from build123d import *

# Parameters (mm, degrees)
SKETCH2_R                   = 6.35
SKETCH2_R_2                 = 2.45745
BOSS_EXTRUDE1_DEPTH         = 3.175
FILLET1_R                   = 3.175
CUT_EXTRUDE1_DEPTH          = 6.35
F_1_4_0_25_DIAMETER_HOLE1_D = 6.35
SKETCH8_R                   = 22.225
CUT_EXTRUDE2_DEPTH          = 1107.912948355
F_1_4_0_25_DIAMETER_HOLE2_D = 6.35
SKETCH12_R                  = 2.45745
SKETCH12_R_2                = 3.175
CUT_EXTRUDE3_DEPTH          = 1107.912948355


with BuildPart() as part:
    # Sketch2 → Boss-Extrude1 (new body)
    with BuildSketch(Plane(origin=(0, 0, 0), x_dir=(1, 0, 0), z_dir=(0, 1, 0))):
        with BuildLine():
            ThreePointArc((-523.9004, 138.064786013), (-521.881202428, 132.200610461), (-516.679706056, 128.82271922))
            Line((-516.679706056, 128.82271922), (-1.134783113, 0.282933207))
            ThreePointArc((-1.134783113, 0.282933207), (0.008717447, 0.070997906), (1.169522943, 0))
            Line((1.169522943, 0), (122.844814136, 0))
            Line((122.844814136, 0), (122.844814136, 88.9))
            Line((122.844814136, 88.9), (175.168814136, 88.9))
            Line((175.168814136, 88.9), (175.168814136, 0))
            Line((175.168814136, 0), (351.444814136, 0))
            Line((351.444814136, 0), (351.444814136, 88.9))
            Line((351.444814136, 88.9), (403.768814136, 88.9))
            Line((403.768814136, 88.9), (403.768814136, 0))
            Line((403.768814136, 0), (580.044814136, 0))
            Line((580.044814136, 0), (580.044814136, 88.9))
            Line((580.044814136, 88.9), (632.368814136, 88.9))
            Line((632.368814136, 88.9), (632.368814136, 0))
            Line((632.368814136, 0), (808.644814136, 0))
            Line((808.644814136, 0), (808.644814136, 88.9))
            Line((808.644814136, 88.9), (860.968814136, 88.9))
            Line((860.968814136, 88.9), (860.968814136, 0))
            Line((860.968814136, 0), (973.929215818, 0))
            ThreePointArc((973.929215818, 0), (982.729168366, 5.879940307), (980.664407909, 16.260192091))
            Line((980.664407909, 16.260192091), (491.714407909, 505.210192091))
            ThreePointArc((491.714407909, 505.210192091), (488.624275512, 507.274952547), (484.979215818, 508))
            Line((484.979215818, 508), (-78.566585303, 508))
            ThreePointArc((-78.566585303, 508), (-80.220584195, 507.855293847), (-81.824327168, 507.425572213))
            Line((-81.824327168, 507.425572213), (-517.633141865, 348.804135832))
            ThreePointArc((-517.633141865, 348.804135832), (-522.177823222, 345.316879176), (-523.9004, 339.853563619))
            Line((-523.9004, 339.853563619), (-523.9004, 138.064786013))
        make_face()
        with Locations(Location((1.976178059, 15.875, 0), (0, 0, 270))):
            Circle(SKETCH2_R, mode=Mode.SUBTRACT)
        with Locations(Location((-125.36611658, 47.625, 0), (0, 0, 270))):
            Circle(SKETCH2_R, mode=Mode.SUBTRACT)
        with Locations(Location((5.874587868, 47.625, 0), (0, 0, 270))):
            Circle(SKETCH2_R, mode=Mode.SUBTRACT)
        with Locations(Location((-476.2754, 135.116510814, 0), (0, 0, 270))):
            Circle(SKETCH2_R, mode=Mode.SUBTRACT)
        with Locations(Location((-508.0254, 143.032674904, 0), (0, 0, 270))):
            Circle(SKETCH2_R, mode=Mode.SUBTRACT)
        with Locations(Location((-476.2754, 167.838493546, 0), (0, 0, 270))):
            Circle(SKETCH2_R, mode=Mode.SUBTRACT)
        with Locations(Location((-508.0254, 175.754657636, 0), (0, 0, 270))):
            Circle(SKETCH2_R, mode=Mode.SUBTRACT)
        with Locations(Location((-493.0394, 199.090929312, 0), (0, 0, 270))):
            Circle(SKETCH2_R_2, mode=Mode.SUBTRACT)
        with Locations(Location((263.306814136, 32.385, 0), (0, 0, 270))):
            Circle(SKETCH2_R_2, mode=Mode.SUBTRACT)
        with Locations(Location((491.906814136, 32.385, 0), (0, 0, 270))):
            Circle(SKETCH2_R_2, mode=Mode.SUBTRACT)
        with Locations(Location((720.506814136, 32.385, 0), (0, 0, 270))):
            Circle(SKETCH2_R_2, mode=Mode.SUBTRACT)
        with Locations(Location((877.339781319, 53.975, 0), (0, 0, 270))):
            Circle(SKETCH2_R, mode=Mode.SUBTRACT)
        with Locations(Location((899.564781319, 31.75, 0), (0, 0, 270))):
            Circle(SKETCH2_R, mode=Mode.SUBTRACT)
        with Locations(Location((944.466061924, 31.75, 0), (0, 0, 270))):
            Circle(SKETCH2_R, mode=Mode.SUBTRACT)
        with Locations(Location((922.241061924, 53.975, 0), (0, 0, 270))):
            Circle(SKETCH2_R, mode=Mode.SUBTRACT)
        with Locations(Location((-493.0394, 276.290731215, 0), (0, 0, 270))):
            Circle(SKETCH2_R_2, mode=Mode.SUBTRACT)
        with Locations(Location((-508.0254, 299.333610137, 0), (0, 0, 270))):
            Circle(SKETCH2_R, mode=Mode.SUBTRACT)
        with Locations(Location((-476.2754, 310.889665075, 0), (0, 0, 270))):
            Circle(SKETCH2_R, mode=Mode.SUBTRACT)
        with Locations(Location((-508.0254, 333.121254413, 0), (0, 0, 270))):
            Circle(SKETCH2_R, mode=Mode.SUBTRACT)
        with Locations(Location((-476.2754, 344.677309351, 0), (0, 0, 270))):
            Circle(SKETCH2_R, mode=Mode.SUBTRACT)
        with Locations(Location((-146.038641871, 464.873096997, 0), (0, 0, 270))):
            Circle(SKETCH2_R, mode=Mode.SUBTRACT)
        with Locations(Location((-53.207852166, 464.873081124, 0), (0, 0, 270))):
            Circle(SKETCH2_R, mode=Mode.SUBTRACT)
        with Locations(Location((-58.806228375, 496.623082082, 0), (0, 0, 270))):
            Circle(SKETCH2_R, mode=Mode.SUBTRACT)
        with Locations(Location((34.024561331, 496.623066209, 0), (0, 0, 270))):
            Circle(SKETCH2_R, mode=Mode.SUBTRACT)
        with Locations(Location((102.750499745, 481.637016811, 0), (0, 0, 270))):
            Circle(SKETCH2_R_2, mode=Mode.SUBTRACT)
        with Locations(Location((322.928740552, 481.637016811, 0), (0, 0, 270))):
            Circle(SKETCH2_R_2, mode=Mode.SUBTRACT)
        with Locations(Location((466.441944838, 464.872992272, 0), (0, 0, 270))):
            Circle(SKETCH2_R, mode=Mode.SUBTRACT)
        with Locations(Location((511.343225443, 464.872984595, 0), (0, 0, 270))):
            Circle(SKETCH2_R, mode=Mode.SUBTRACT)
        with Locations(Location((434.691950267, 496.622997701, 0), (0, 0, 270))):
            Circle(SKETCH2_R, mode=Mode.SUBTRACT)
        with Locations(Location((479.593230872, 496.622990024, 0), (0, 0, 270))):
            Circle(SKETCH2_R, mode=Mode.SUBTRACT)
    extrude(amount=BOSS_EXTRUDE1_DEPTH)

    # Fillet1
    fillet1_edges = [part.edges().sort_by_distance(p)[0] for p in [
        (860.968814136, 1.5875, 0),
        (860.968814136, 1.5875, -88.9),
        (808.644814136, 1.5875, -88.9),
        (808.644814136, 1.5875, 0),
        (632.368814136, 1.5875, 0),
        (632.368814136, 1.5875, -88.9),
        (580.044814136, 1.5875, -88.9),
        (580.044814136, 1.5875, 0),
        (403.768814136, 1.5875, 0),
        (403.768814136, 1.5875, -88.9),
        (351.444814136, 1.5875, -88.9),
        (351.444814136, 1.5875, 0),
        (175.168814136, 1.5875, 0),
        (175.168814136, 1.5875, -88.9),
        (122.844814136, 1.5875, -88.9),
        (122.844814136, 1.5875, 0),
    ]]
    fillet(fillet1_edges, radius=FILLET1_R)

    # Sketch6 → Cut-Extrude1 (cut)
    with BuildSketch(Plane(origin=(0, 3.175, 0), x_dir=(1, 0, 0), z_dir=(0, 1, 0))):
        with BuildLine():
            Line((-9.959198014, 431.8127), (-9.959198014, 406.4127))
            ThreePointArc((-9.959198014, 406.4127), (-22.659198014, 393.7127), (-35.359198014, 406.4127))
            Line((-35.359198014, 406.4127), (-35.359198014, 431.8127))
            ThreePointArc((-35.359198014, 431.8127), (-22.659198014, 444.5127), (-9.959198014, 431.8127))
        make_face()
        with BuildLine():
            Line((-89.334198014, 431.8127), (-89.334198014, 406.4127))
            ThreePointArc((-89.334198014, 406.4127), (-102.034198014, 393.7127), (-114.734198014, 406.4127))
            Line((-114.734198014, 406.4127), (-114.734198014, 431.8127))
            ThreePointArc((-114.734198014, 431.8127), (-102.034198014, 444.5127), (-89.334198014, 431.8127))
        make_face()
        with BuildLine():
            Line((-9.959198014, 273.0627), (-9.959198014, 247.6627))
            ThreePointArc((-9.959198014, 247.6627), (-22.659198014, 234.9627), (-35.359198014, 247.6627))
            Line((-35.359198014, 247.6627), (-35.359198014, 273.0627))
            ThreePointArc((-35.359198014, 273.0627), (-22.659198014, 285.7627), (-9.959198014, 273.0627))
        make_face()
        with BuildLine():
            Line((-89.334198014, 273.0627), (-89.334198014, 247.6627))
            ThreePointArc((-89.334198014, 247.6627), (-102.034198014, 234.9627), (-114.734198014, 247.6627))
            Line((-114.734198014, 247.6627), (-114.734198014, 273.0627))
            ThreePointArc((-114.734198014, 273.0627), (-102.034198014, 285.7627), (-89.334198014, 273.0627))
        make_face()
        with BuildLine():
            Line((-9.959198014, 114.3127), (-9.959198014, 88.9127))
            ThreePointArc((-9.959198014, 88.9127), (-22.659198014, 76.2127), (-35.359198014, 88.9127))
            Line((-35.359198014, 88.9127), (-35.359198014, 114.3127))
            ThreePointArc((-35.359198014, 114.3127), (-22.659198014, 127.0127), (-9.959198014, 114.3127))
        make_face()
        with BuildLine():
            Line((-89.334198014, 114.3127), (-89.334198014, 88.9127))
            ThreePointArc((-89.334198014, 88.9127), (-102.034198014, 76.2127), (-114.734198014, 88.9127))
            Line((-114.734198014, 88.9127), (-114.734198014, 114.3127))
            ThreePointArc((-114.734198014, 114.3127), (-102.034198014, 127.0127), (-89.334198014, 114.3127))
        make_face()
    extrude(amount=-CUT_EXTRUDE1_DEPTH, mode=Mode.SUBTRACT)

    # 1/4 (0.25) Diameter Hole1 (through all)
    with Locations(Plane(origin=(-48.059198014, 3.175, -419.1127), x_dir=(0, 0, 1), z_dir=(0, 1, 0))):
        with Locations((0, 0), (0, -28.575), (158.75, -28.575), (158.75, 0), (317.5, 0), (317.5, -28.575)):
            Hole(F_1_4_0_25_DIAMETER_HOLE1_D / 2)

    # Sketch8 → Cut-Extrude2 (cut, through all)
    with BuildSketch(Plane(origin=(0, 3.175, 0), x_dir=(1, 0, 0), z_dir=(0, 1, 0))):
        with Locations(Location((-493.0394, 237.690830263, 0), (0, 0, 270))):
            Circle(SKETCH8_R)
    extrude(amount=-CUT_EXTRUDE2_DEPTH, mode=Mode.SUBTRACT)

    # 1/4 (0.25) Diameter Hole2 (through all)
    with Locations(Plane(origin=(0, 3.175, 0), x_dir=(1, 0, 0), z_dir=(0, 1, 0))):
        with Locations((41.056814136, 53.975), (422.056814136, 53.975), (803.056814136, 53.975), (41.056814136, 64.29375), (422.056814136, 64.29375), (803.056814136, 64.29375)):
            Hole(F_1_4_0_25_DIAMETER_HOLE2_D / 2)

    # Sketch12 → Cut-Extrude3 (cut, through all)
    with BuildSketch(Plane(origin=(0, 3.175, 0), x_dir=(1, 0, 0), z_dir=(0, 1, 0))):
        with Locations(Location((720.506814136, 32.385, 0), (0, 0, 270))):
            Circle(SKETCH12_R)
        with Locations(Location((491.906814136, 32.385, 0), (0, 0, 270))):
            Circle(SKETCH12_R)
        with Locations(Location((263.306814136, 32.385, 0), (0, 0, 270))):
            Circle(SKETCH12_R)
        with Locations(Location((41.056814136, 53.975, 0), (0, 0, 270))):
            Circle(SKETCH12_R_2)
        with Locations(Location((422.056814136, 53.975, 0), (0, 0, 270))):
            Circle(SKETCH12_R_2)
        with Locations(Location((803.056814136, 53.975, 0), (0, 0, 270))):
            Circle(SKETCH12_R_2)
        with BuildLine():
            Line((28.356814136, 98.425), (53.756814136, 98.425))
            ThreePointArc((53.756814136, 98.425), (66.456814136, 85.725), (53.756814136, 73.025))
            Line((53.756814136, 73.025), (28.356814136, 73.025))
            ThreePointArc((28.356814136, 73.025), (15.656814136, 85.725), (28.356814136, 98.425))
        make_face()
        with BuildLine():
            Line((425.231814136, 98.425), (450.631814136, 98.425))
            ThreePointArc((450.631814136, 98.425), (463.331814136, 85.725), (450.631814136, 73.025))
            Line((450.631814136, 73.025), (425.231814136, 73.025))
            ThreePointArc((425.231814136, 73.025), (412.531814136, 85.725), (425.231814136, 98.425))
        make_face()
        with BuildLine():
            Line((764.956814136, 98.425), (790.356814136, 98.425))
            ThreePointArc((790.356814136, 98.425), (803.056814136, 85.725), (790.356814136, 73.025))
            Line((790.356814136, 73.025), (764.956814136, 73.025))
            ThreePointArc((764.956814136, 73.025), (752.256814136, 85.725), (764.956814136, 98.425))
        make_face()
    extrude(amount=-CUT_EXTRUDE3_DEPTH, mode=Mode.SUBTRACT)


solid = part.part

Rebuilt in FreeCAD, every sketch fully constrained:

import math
import FreeCAD as App
import Part
import Sketcher

V = App.Vector
Q = App.Units.Quantity


def edges_at(feature, points):
    """Names of the edges that pass closest to the given points."""
    edges = feature.Shape.Edges
    near = lambda p: min(range(len(edges)), key=lambda i: edges[i].distToShape(Part.Vertex(*p))[0])
    return sorted({f"Edge{near(p) + 1}" for p in points})

doc = App.newDocument("Part")
body = doc.addObject("PartDesign::Body", "Body")

# Sketch on XZ plane
sketch1 = body.newObject("Sketcher::SketchObject", "Sketch")
sketch1.AttachmentSupport = (doc.getObject("XZ_Plane"), [""])
sketch1.MapMode = "FlatFace"
sketch1.addGeometry([
    Part.ArcOfCircle(Part.Circle(V(-514.4, -138.1, 0), V(0, 0, 1), 9.5), math.radians(104), math.radians(180)),  # 0
    Part.LineSegment(V(-516.7, -128.8, 0), V(-1.1, -0.3, 0)),  # 1
    Part.ArcOfCircle(Part.Circle(V(1.2, -9.5, 0), V(0, 0, 1), 9.5), math.radians(90), math.radians(104)),  # 2
    Part.LineSegment(V(1.2, 0, 0), V(122.8, 0, 0)),  # 3
    Part.LineSegment(V(122.8, 0, 0), V(122.8, -88.9, 0)),  # 4
    Part.LineSegment(V(122.8, -88.9, 0), V(175.2, -88.9, 0)),  # 5
    Part.LineSegment(V(175.2, -88.9, 0), V(175.2, 0, 0)),  # 6
    Part.LineSegment(V(175.2, 0, 0), V(351.4, 0, 0)),  # 7
    Part.LineSegment(V(351.4, 0, 0), V(351.4, -88.9, 0)),  # 8
    Part.LineSegment(V(351.4, -88.9, 0), V(403.8, -88.9, 0)),  # 9
    Part.LineSegment(V(403.8, -88.9, 0), V(403.8, 0, 0)),  # 10
    Part.LineSegment(V(403.8, 0, 0), V(580, 0, 0)),  # 11
    Part.LineSegment(V(580, 0, 0), V(580, -88.9, 0)),  # 12
    Part.LineSegment(V(580, -88.9, 0), V(632.4, -88.9, 0)),  # 13
    Part.LineSegment(V(632.4, -88.9, 0), V(632.4, 0, 0)),  # 14
    Part.LineSegment(V(632.4, 0, 0), V(808.6, 0, 0)),  # 15
    Part.LineSegment(V(808.6, 0, 0), V(808.6, -88.9, 0)),  # 16
    Part.LineSegment(V(808.6, -88.9, 0), V(861, -88.9, 0)),  # 17
    Part.LineSegment(V(861, -88.9, 0), V(861, 0, 0)),  # 18
    Part.LineSegment(V(861, 0, 0), V(973.9, 0, 0)),  # 19
    Part.ArcOfCircle(Part.Circle(V(973.9, -9.5, 0), V(0, 0, 1), 9.5), math.radians(-45), math.radians(90)),  # 20
    Part.LineSegment(V(980.7, -16.3, 0), V(491.7, -505.2, 0)),  # 21
    Part.ArcOfCircle(Part.Circle(V(485, -498.5, 0), V(0, 0, 1), 9.5), math.radians(-90), math.radians(-45)),  # 22
    Part.LineSegment(V(485, -508, 0), V(-78.6, -508, 0)),  # 23
    Part.ArcOfCircle(Part.Circle(V(-78.6, -498.5, 0), V(0, 0, 1), 9.5), math.radians(-110), math.radians(-90)),  # 24
    Part.LineSegment(V(-81.8, -507.4, 0), V(-517.6, -348.8, 0)),  # 25
    Part.ArcOfCircle(Part.Circle(V(-514.4, -339.9, 0), V(0, 0, 1), 9.5), math.radians(180), math.radians(250)),  # 26
    Part.LineSegment(V(-523.9, -339.9, 0), V(-523.9, -138.1, 0)),  # 27
    Part.Circle(V(2, -15.9, 0), V(0, 0, 1), 6.3),  # 28
    Part.Circle(V(-125.4, -47.6, 0), V(0, 0, 1), 6.3),  # 29
    Part.Circle(V(5.9, -47.6, 0), V(0, 0, 1), 6.3),  # 30
    Part.Circle(V(-476.3, -135.1, 0), V(0, 0, 1), 6.3),  # 31
    Part.Circle(V(-508, -143, 0), V(0, 0, 1), 6.3),  # 32
    Part.Circle(V(-476.3, -167.8, 0), V(0, 0, 1), 6.3),  # 33
    Part.Circle(V(-508, -175.8, 0), V(0, 0, 1), 6.3),  # 34
    Part.Circle(V(-493, -199.1, 0), V(0, 0, 1), 2.5),  # 35
    Part.Circle(V(263.3, -32.4, 0), V(0, 0, 1), 2.5),  # 36
    Part.Circle(V(491.9, -32.4, 0), V(0, 0, 1), 2.5),  # 37
    Part.Circle(V(720.5, -32.4, 0), V(0, 0, 1), 2.5),  # 38
    Part.Circle(V(899.6, -31.8, 0), V(0, 0, 1), 6.3),  # 39
    Part.Circle(V(944.5, -31.8, 0), V(0, 0, 1), 6.3),  # 40
    Part.Circle(V(877.3, -54, 0), V(0, 0, 1), 6.3),  # 41
    Part.Circle(V(922.2, -54, 0), V(0, 0, 1), 6.3),  # 42
    Part.Circle(V(-493, -276.3, 0), V(0, 0, 1), 2.5),  # 43
    Part.Circle(V(-508, -299.3, 0), V(0, 0, 1), 6.3),  # 44
    Part.Circle(V(-476.3, -310.9, 0), V(0, 0, 1), 6.3),  # 45
    Part.Circle(V(-508, -333.1, 0), V(0, 0, 1), 6.3),  # 46
    Part.Circle(V(-476.3, -344.7, 0), V(0, 0, 1), 6.3),  # 47
    Part.Circle(V(-146, -464.9, 0), V(0, 0, 1), 6.3),  # 48
    Part.Circle(V(-53.2, -464.9, 0), V(0, 0, 1), 6.3),  # 49
    Part.Circle(V(-58.8, -496.6, 0), V(0, 0, 1), 6.3),  # 50
    Part.Circle(V(34, -496.6, 0), V(0, 0, 1), 6.3),  # 51
    Part.Circle(V(102.8, -481.6, 0), V(0, 0, 1), 2.5),  # 52
    Part.Circle(V(322.9, -481.6, 0), V(0, 0, 1), 2.5),  # 53
    Part.Circle(V(466.4, -464.9, 0), V(0, 0, 1), 6.3),  # 54
    Part.Circle(V(511.3, -464.9, 0), V(0, 0, 1), 6.3),  # 55
    Part.Circle(V(434.7, -496.6, 0), V(0, 0, 1), 6.3),  # 56
    Part.Circle(V(479.6, -496.6, 0), V(0, 0, 1), 6.3),  # 57
], False)
sketch1.addConstraint([
    Sketcher.Constraint("Tangent", 0, 1, 1, 1),
    Sketcher.Constraint("Tangent", 1, 2, 2, 2),
    Sketcher.Constraint("Tangent", 2, 1, 3, 1),
    Sketcher.Constraint("Coincident", 3, 2, 4, 1),
    Sketcher.Constraint("Coincident", 4, 2, 5, 1),
    Sketcher.Constraint("Coincident", 5, 2, 6, 1),
    Sketcher.Constraint("Coincident", 6, 2, 7, 1),
    Sketcher.Constraint("Coincident", 7, 2, 8, 1),
    Sketcher.Constraint("Coincident", 8, 2, 9, 1),
    Sketcher.Constraint("Coincident", 9, 2, 10, 1),
    Sketcher.Constraint("Coincident", 10, 2, 11, 1),
    Sketcher.Constraint("Coincident", 11, 2, 12, 1),
    Sketcher.Constraint("Coincident", 12, 2, 13, 1),
    Sketcher.Constraint("Coincident", 13, 2, 14, 1),
    Sketcher.Constraint("Coincident", 14, 2, 15, 1),
    Sketcher.Constraint("Coincident", 15, 2, 16, 1),
    Sketcher.Constraint("Coincident", 16, 2, 17, 1),
    Sketcher.Constraint("Coincident", 17, 2, 18, 1),
    Sketcher.Constraint("Coincident", 18, 2, 19, 1),
    Sketcher.Constraint("Tangent", 19, 2, 20, 2),
    Sketcher.Constraint("Tangent", 20, 1, 21, 1),
    Sketcher.Constraint("Tangent", 21, 2, 22, 2),
    Sketcher.Constraint("Tangent", 22, 1, 23, 1),
    Sketcher.Constraint("Tangent", 23, 2, 24, 2),
    Sketcher.Constraint("Tangent", 24, 1, 25, 1),
    Sketcher.Constraint("Tangent", 25, 2, 26, 2),
    Sketcher.Constraint("Tangent", 26, 1, 27, 1),
    Sketcher.Constraint("Tangent", 27, 2, 0, 2),
    Sketcher.Constraint("Horizontal", 3),
    Sketcher.Constraint("Vertical", 4),
    Sketcher.Constraint("Horizontal", 5),
    Sketcher.Constraint("Vertical", 6),
    Sketcher.Constraint("Horizontal", 7),
    Sketcher.Constraint("Vertical", 8),
    Sketcher.Constraint("Horizontal", 9),
    Sketcher.Constraint("Vertical", 10),
    Sketcher.Constraint("Horizontal", 11),
    Sketcher.Constraint("Vertical", 12),
    Sketcher.Constraint("Horizontal", 13),
    Sketcher.Constraint("Vertical", 14),
    Sketcher.Constraint("Horizontal", 15),
    Sketcher.Constraint("Vertical", 16),
    Sketcher.Constraint("Horizontal", 17),
    Sketcher.Constraint("Vertical", 18),
    Sketcher.Constraint("Horizontal", 19),
    Sketcher.Constraint("Horizontal", 23),
    Sketcher.Constraint("Vertical", 27),
    Sketcher.Constraint("Equal", 0, 2),
    Sketcher.Constraint("Equal", 2, 20),
    Sketcher.Constraint("Equal", 20, 22),
    Sketcher.Constraint("Equal", 22, 24),
    Sketcher.Constraint("Equal", 24, 26),
    Sketcher.Constraint("Equal", 28, 29),
    Sketcher.Constraint("Equal", 29, 30),
    Sketcher.Constraint("Equal", 30, 31),
    Sketcher.Constraint("Equal", 31, 32),
    Sketcher.Constraint("Equal", 32, 33),
    Sketcher.Constraint("Equal", 33, 34),
    Sketcher.Constraint("Equal", 35, 36),
    Sketcher.Constraint("Equal", 36, 37),
    Sketcher.Constraint("Equal", 37, 38),
    Sketcher.Constraint("Equal", 34, 39),
    Sketcher.Constraint("Equal", 39, 40),
    Sketcher.Constraint("Equal", 40, 41),
    Sketcher.Constraint("Equal", 41, 42),
    Sketcher.Constraint("Equal", 38, 43),
    Sketcher.Constraint("Equal", 42, 44),
    Sketcher.Constraint("Equal", 44, 45),
    Sketcher.Constraint("Equal", 45, 46),
    Sketcher.Constraint("Equal", 46, 47),
    Sketcher.Constraint("Equal", 47, 48),
    Sketcher.Constraint("Equal", 48, 49),
    Sketcher.Constraint("Equal", 49, 50),
    Sketcher.Constraint("Equal", 50, 51),
    Sketcher.Constraint("Equal", 43, 52),
    Sketcher.Constraint("Equal", 52, 53),
    Sketcher.Constraint("Equal", 51, 54),
    Sketcher.Constraint("Equal", 54, 55),
    Sketcher.Constraint("Equal", 55, 56),
    Sketcher.Constraint("Equal", 56, 57),
    Sketcher.Constraint("PointOnObject", 2, 1, -1),
    Sketcher.Constraint("PointOnObject", 6, 2, -1),
    Sketcher.Constraint("PointOnObject", 10, 2, -1),
    Sketcher.Constraint("PointOnObject", 14, 2, -1),
    Sketcher.Constraint("PointOnObject", 18, 2, -1),
    Sketcher.Constraint("Horizontal", 29, 3, 30, 3),
    Sketcher.Constraint("Horizontal", 36, 3, 37, 3),
    Sketcher.Constraint("Horizontal", 37, 3, 38, 3),
    Sketcher.Constraint("Horizontal", 39, 3, 40, 3),
    Sketcher.Constraint("Horizontal", 41, 3, 42, 3),
    Sketcher.Constraint("Horizontal", 52, 3, 53, 3),
    Sketcher.Constraint("Horizontal", 5, 2, 8, 2),
    Sketcher.Constraint("Horizontal", 9, 2, 12, 2),
    Sketcher.Constraint("Horizontal", 13, 2, 16, 2),
    Sketcher.Constraint("Vertical", 31, 3, 33, 3),
    Sketcher.Constraint("Vertical", 32, 3, 34, 3),
    Sketcher.Constraint("Vertical", 35, 3, 43, 3),
    Sketcher.Constraint("Vertical", 34, 3, 44, 3),
    Sketcher.Constraint("Vertical", 33, 3, 45, 3),
    Sketcher.Constraint("Vertical", 44, 3, 46, 3),
    Sketcher.Constraint("Vertical", 45, 3, 47, 3),
    Sketcher.Constraint("Equal", 5, 9),
    Sketcher.Constraint("Equal", 7, 11),
    Sketcher.Constraint("Equal", 9, 13),
    Sketcher.Constraint("Equal", 11, 15),
    Sketcher.Constraint("Equal", 13, 17),
    Sketcher.Constraint("Diameter", 28, Q("0.5 in")),
    Sketcher.Constraint("DistanceY", 4, 2, 4, 1, Q("3.5 in")),
    Sketcher.Constraint("DistanceY", 22, 1, -1, 1, Q("20 in")),
    Sketcher.Constraint("Angle", 1, Q("14 deg")),
    Sketcher.Constraint("Angle", 21, Q("-135 deg")),
    Sketcher.Constraint("Angle", 25, Q("160 deg")),
    Sketcher.Constraint("Radius", 0, Q("0.375 in")),
    Sketcher.Constraint("Diameter", 35, Q("0.1935 in")),
    Sketcher.Constraint("DistanceX", 5, 1, 5, 2, Q("2.06 in")),
    Sketcher.Constraint("DistanceX", 7, 1, 7, 2, Q("6.94 in")),
    Sketcher.Constraint("DistanceY", 39, 3, -1, 1, Q("1.25 in")),
    Sketcher.Constraint("DistanceX", 0, 3, -1, 1, Q("20.251 in")),
    Sketcher.Constraint("DistanceY", 28, 3, -1, 1, Q("0.625 in")),
    Sketcher.Constraint("DistanceY", 29, 3, -1, 1, Q("1.875 in")),
    Sketcher.Constraint("DistanceX", 31, 3, -1, 1, Q("18.751 in")),
    Sketcher.Constraint("DistanceX", 32, 3, -1, 1, Q("20.001 in")),
    Sketcher.Constraint("DistanceX", 35, 3, -1, 1, Q("19.411 in")),
    Sketcher.Constraint("DistanceY", 36, 3, -1, 1, Q("1.275 in")),
    Sketcher.Constraint("DistanceY", 41, 3, -1, 1, Q("2.125 in")),
    Sketcher.Constraint("DistanceX", 19, 1, 19, 2, Q("112.960402 mm")),
    Sketcher.Constraint("DistanceX", 23, 2, 23, 1, Q("563.545801 mm")),
    Sketcher.Constraint("DistanceX", 3, 1, 3, 2, Q("121.675291 mm")),
    Sketcher.Constraint("DistanceX", -1, 1, 52, 3, Q("102.7505 mm")),
    Sketcher.Constraint("DistanceY", 27, 1, 27, 2, Q("201.788778 mm")),
    Sketcher.Constraint("DistanceX", -1, 1, 28, 3, Q("1.976178 mm")),
    Sketcher.Constraint("DistanceY", 31, 3, -1, 1, Q("135.116511 mm")),
    Sketcher.Constraint("DistanceY", 35, 3, -1, 1, Q("199.090929 mm")),
    Sketcher.Constraint("DistanceX", -1, 1, 39, 3, Q("899.564781 mm")),
    Sketcher.Constraint("DistanceX", -1, 1, 40, 3, Q("944.466062 mm")),
    Sketcher.Constraint("DistanceX", -1, 1, 41, 3, Q("877.339781 mm")),
    Sketcher.Constraint("DistanceX", -1, 1, 42, 3, Q("922.241062 mm")),
    Sketcher.Constraint("DistanceY", 43, 3, -1, 1, Q("276.290731 mm")),
    Sketcher.Constraint("DistanceY", 44, 3, -1, 1, Q("299.33361 mm")),
    Sketcher.Constraint("DistanceY", 47, 3, -1, 1, Q("344.677309 mm")),
    Sketcher.Constraint("DistanceX", 48, 3, -1, 1, Q("146.038642 mm")),
    Sketcher.Constraint("DistanceY", 49, 3, -1, 1, Q("464.873081 mm")),
    Sketcher.Constraint("DistanceX", 50, 3, -1, 1, Q("58.806228 mm")),
    Sketcher.Constraint("DistanceX", -1, 1, 51, 3, Q("34.024561 mm")),
    Sketcher.Constraint("DistanceX", -1, 1, 53, 3, Q("322.928741 mm")),
    Sketcher.Constraint("DistanceX", -1, 1, 56, 3, Q("434.69195 mm")),
    Sketcher.Constraint("DistanceX", -1, 1, 57, 3, Q("479.593231 mm")),
    Sketcher.Constraint("DistanceY", 57, 3, -1, 1, Q("496.62299 mm")),
    Sketcher.Constraint("DistanceX", 29, 3, -1, 1, Q("125.366117 mm")),
    Sketcher.Constraint("DistanceX", -1, 1, 30, 3, Q("5.874588 mm")),
    Sketcher.Constraint("DistanceY", 32, 3, -1, 1, Q("143.032675 mm")),
    Sketcher.Constraint("DistanceY", 33, 3, -1, 1, Q("167.838494 mm")),
    Sketcher.Constraint("DistanceY", 34, 3, -1, 1, Q("175.754658 mm")),
    Sketcher.Constraint("DistanceX", -1, 1, 36, 3, Q("263.306814 mm")),
    Sketcher.Constraint("DistanceX", -1, 1, 37, 3, Q("491.906814 mm")),
    Sketcher.Constraint("DistanceX", -1, 1, 38, 3, Q("720.506814 mm")),
    Sketcher.Constraint("DistanceY", 45, 3, -1, 1, Q("310.889665 mm")),
    Sketcher.Constraint("DistanceY", 46, 3, -1, 1, Q("333.121254 mm")),
    Sketcher.Constraint("DistanceY", 48, 3, -1, 1, Q("464.873097 mm")),
    Sketcher.Constraint("DistanceX", 49, 3, -1, 1, Q("53.207852 mm")),
    Sketcher.Constraint("DistanceY", 50, 3, -1, 1, Q("496.623082 mm")),
    Sketcher.Constraint("DistanceY", 51, 3, -1, 1, Q("496.623066 mm")),
    Sketcher.Constraint("DistanceY", 52, 3, -1, 1, Q("481.637017 mm")),
    Sketcher.Constraint("DistanceX", -1, 1, 54, 3, Q("466.441945 mm")),
    Sketcher.Constraint("DistanceY", 54, 3, -1, 1, Q("464.872992 mm")),
    Sketcher.Constraint("DistanceX", -1, 1, 55, 3, Q("511.343225 mm")),
    Sketcher.Constraint("DistanceY", 55, 3, -1, 1, Q("464.872985 mm")),
    Sketcher.Constraint("DistanceY", 56, 3, -1, 1, Q("496.622998 mm")),
])
pad1 = body.newObject("PartDesign::Pad", "Pad")
pad1.Profile = sketch1
pad1.Length = Q("0.125 in")
pad1.Reversed = True
doc.recompute()

fillet = body.newObject("PartDesign::Fillet", "Fillet")
fillet.Base = (pad1, edges_at(pad1, [
    (860.969, 1.587, 0),
    (860.969, 1.587, -88.9),
    (808.645, 1.587, -88.9),
    (808.645, 1.587, 0),
    (632.369, 1.587, 0),
    (632.369, 1.587, -88.9),
    (580.045, 1.587, -88.9),
    (580.045, 1.587, 0),
    (403.769, 1.587, 0),
    (403.769, 1.587, -88.9),
    (351.445, 1.587, -88.9),
    (351.445, 1.587, 0),
    (175.169, 1.587, 0),
    (175.169, 1.587, -88.9),
    (122.845, 1.587, -88.9),
    (122.845, 1.587, 0),
]))
fillet.Radius = Q("0.125 in")

# Sketch on XZ plane
sketch2 = body.newObject("Sketcher::SketchObject", "Sketch001")
sketch2.AttachmentSupport = (doc.getObject("XZ_Plane"), [""])
sketch2.MapMode = "FlatFace"
sketch2.AttachmentOffset = App.Placement(V(0, 0, -0.125 * 25.4), App.Rotation())
sketch2.addGeometry([
    Part.LineSegment(V(-10, -406, 0), V(-10, -432, 0)),  # 0
    Part.ArcOfCircle(Part.Circle(V(-23, -432, 0), V(0, 0, 1), 13), math.radians(180), math.radians(360)),  # 1
    Part.LineSegment(V(-35, -432, 0), V(-35, -406, 0)),  # 2
    Part.ArcOfCircle(Part.Circle(V(-23, -406, 0), V(0, 0, 1), 13), math.radians(0), math.radians(180)),  # 3
    Part.LineSegment(V(-89, -406, 0), V(-89, -432, 0)),  # 4
    Part.ArcOfCircle(Part.Circle(V(-102, -432, 0), V(0, 0, 1), 13), math.radians(180), math.radians(360)),  # 5
    Part.LineSegment(V(-115, -432, 0), V(-115, -406, 0)),  # 6
    Part.ArcOfCircle(Part.Circle(V(-102, -406, 0), V(0, 0, 1), 13), math.radians(0), math.radians(180)),  # 7
    Part.LineSegment(V(-10, -248, 0), V(-10, -273, 0)),  # 8
    Part.ArcOfCircle(Part.Circle(V(-23, -273, 0), V(0, 0, 1), 13), math.radians(180), math.radians(360)),  # 9
    Part.LineSegment(V(-35, -273, 0), V(-35, -248, 0)),  # 10
    Part.ArcOfCircle(Part.Circle(V(-23, -248, 0), V(0, 0, 1), 13), math.radians(0), math.radians(180)),  # 11
    Part.LineSegment(V(-89, -248, 0), V(-89, -273, 0)),  # 12
    Part.ArcOfCircle(Part.Circle(V(-102, -273, 0), V(0, 0, 1), 13), math.radians(180), math.radians(360)),  # 13
    Part.LineSegment(V(-115, -273, 0), V(-115, -248, 0)),  # 14
    Part.ArcOfCircle(Part.Circle(V(-102, -248, 0), V(0, 0, 1), 13), math.radians(0), math.radians(180)),  # 15
    Part.LineSegment(V(-10, -89, 0), V(-10, -114, 0)),  # 16
    Part.ArcOfCircle(Part.Circle(V(-23, -114, 0), V(0, 0, 1), 13), math.radians(180), math.radians(360)),  # 17
    Part.LineSegment(V(-35, -114, 0), V(-35, -89, 0)),  # 18
    Part.ArcOfCircle(Part.Circle(V(-23, -89, 0), V(0, 0, 1), 13), math.radians(0), math.radians(180)),  # 19
    Part.LineSegment(V(-89, -89, 0), V(-89, -114, 0)),  # 20
    Part.ArcOfCircle(Part.Circle(V(-102, -114, 0), V(0, 0, 1), 13), math.radians(180), math.radians(360)),  # 21
    Part.LineSegment(V(-115, -114, 0), V(-115, -89, 0)),  # 22
    Part.ArcOfCircle(Part.Circle(V(-102, -89, 0), V(0, 0, 1), 13), math.radians(0), math.radians(180)),  # 23
], False)
sketch2.addConstraint([
    Sketcher.Constraint("Tangent", 0, 2, 1, 2),
    Sketcher.Constraint("Tangent", 1, 1, 2, 1),
    Sketcher.Constraint("Tangent", 2, 2, 3, 2),
    Sketcher.Constraint("Tangent", 3, 1, 0, 1),
    Sketcher.Constraint("Tangent", 4, 2, 5, 2),
    Sketcher.Constraint("Tangent", 5, 1, 6, 1),
    Sketcher.Constraint("Tangent", 6, 2, 7, 2),
    Sketcher.Constraint("Tangent", 7, 1, 4, 1),
    Sketcher.Constraint("Tangent", 8, 2, 9, 2),
    Sketcher.Constraint("Tangent", 9, 1, 10, 1),
    Sketcher.Constraint("Tangent", 10, 2, 11, 2),
    Sketcher.Constraint("Tangent", 11, 1, 8, 1),
    Sketcher.Constraint("Tangent", 12, 2, 13, 2),
    Sketcher.Constraint("Tangent", 13, 1, 14, 1),
    Sketcher.Constraint("Tangent", 14, 2, 15, 2),
    Sketcher.Constraint("Tangent", 15, 1, 12, 1),
    Sketcher.Constraint("Tangent", 16, 2, 17, 2),
    Sketcher.Constraint("Tangent", 17, 1, 18, 1),
    Sketcher.Constraint("Tangent", 18, 2, 19, 2),
    Sketcher.Constraint("Tangent", 19, 1, 16, 1),
    Sketcher.Constraint("Tangent", 20, 2, 21, 2),
    Sketcher.Constraint("Tangent", 21, 1, 22, 1),
    Sketcher.Constraint("Tangent", 22, 2, 23, 2),
    Sketcher.Constraint("Tangent", 23, 1, 20, 1),
    Sketcher.Constraint("Vertical", 0),
    Sketcher.Constraint("Vertical", 2),
    Sketcher.Constraint("Vertical", 4),
    Sketcher.Constraint("Vertical", 6),
    Sketcher.Constraint("Vertical", 8),
    Sketcher.Constraint("Vertical", 10),
    Sketcher.Constraint("Vertical", 12),
    Sketcher.Constraint("Vertical", 14),
    Sketcher.Constraint("Vertical", 16),
    Sketcher.Constraint("Vertical", 18),
    Sketcher.Constraint("Vertical", 20),
    Sketcher.Constraint("Vertical", 22),
    Sketcher.Constraint("Equal", 3, 5),
    Sketcher.Constraint("Equal", 7, 9),
    Sketcher.Constraint("Equal", 11, 13),
    Sketcher.Constraint("Equal", 15, 17),
    Sketcher.Constraint("Equal", 19, 21),
    Sketcher.Constraint("Horizontal", 1, 3, 5, 3),
    Sketcher.Constraint("Horizontal", 3, 3, 7, 3),
    Sketcher.Constraint("Horizontal", 9, 3, 13, 3),
    Sketcher.Constraint("Horizontal", 11, 3, 15, 3),
    Sketcher.Constraint("Horizontal", 17, 3, 21, 3),
    Sketcher.Constraint("Horizontal", 19, 3, 23, 3),
    Sketcher.Constraint("Vertical", 3, 3, 9, 3),
    Sketcher.Constraint("Vertical", 7, 3, 13, 3),
    Sketcher.Constraint("Vertical", 11, 3, 17, 3),
    Sketcher.Constraint("Vertical", 15, 3, 21, 3),
    Sketcher.Constraint("Equal", 6, 8),
    Sketcher.Constraint("Equal", 14, 16),
    Sketcher.Constraint("Radius", 1, Q("0.5 in")),
    Sketcher.Constraint("DistanceY", 0, 2, 0, 1, Q("1 in")),
    Sketcher.Constraint("DistanceY", 3, 3, 17, 3, Q("11.5 in")),
    Sketcher.Constraint("DistanceY", 3, 3, 9, 3, Q("5.25 in")),
    Sketcher.Constraint("DistanceX", 5, 3, 1, 3, Q("3.125 in")),
    Sketcher.Constraint("DistanceY", 1, 3, -1, 1, Q("17.0005 in")),
    Sketcher.Constraint("DistanceX", 1, 3, -1, 1, Q("22.659198 mm")),
])
pocket1 = body.newObject("PartDesign::Pocket", "Pocket")
pocket1.Profile = sketch2
pocket1.Length = Q("0.25 in")
pocket1.Reversed = True

# Sketch on XZ plane
sketch3 = body.newObject("Sketcher::SketchObject", "Sketch002")
sketch3.AttachmentSupport = (doc.getObject("XZ_Plane"), [""])
sketch3.MapMode = "FlatFace"
sketch3.AttachmentOffset = App.Placement(V(0, 0, -0.125 * 25.4), App.Rotation())
sketch3.addGeometry([
    Part.Circle(V(-48.1, -419.1, 0), V(0, 0, 1), 3.2),  # 0
    Part.Circle(V(-76.6, -419.1, 0), V(0, 0, 1), 3.2),  # 1
    Part.Circle(V(-76.6, -260.4, 0), V(0, 0, 1), 3.2),  # 2
    Part.Circle(V(-48.1, -260.4, 0), V(0, 0, 1), 3.2),  # 3
    Part.Circle(V(-48.1, -101.6, 0), V(0, 0, 1), 3.2),  # 4
    Part.Circle(V(-76.6, -101.6, 0), V(0, 0, 1), 3.2),  # 5
], False)
sketch3.addConstraint([
    Sketcher.Constraint("Equal", 0, 1),
    Sketcher.Constraint("Equal", 1, 2),
    Sketcher.Constraint("Equal", 2, 3),
    Sketcher.Constraint("Equal", 3, 4),
    Sketcher.Constraint("Equal", 4, 5),
    Sketcher.Constraint("Horizontal", 0, 3, 1, 3),
    Sketcher.Constraint("Horizontal", 2, 3, 3, 3),
    Sketcher.Constraint("Horizontal", 4, 3, 5, 3),
    Sketcher.Constraint("Vertical", 1, 3, 2, 3),
    Sketcher.Constraint("Vertical", 0, 3, 3, 3),
    Sketcher.Constraint("Vertical", 3, 3, 4, 3),
    Sketcher.Constraint("Vertical", 2, 3, 5, 3),
    Sketcher.Constraint("Diameter", 0, Q("0.25 in")),
    Sketcher.Constraint("DistanceY", 0, 3, 4, 3, Q("12.5 in")),
    Sketcher.Constraint("DistanceY", 1, 3, 2, 3, Q("6.25 in")),
    Sketcher.Constraint("DistanceX", 1, 3, 0, 3, Q("1.125 in")),
    Sketcher.Constraint("DistanceY", 0, 3, -1, 1, Q("16.5005 in")),
    Sketcher.Constraint("DistanceX", 0, 3, -1, 1, Q("48.059198 mm")),
])
doc.recompute()
hole = body.newObject("PartDesign::Hole", "Hole")
hole.Profile = sketch3
hole.ThreadType = "None"
hole.Diameter = Q("0.25 in")
hole.DepthType = "ThroughAll"
hole.Reversed = True

# Sketch on XZ plane
sketch4 = body.newObject("Sketcher::SketchObject", "Sketch003")
sketch4.AttachmentSupport = (doc.getObject("XZ_Plane"), [""])
sketch4.MapMode = "FlatFace"
sketch4.AttachmentOffset = App.Placement(V(0, 0, -0.125 * 25.4), App.Rotation())
sketch4.addGeometry(Part.Circle(V(-493, -238, 0), V(0, 0, 1), 22), False)
sketch4.addConstraint([
    Sketcher.Constraint("Diameter", 0, Q("1.75 in")),
    Sketcher.Constraint("DistanceX", 0, 3, -1, 1, Q("19.411 in")),
    Sketcher.Constraint("DistanceY", 0, 3, -1, 1, Q("237.69083 mm")),
])
pocket2 = body.newObject("PartDesign::Pocket", "Pocket001")
pocket2.Profile = sketch4
pocket2.Type = "ThroughAll"
pocket2.Reversed = True

# Sketch on XZ plane
sketch5 = body.newObject("Sketcher::SketchObject", "Sketch004")
sketch5.AttachmentSupport = (doc.getObject("XZ_Plane"), [""])
sketch5.MapMode = "FlatFace"
sketch5.AttachmentOffset = App.Placement(V(0, 0, -0.125 * 25.4), App.Rotation())
sketch5.addGeometry([
    Part.Circle(V(41.1, -54, 0), V(0, 0, 1), 3.2),  # 0
    Part.Circle(V(422.1, -54, 0), V(0, 0, 1), 3.2),  # 1
    Part.Circle(V(803.1, -54, 0), V(0, 0, 1), 3.2),  # 2
    Part.Circle(V(41.1, -64.3, 0), V(0, 0, 1), 3.2),  # 3
    Part.Circle(V(422.1, -64.3, 0), V(0, 0, 1), 3.2),  # 4
    Part.Circle(V(803.1, -64.3, 0), V(0, 0, 1), 3.2),  # 5
], False)
sketch5.addConstraint([
    Sketcher.Constraint("Equal", 0, 1),
    Sketcher.Constraint("Equal", 1, 2),
    Sketcher.Constraint("Equal", 2, 3),
    Sketcher.Constraint("Equal", 3, 4),
    Sketcher.Constraint("Equal", 4, 5),
    Sketcher.Constraint("Horizontal", 0, 3, 1, 3),
    Sketcher.Constraint("Horizontal", 1, 3, 2, 3),
    Sketcher.Constraint("Horizontal", 3, 3, 4, 3),
    Sketcher.Constraint("Horizontal", 4, 3, 5, 3),
    Sketcher.Constraint("Vertical", 0, 3, 3, 3),
    Sketcher.Constraint("Vertical", 1, 3, 4, 3),
    Sketcher.Constraint("Vertical", 2, 3, 5, 3),
    Sketcher.Constraint("Diameter", 0, Q("0.25 in")),
    Sketcher.Constraint("DistanceX", 0, 3, 1, 3, Q("15 in")),
    Sketcher.Constraint("DistanceX", 1, 3, 2, 3, Q("15 in")),
    Sketcher.Constraint("DistanceY", 0, 3, -1, 1, Q("2.125 in")),
    Sketcher.Constraint("DistanceY", 3, 3, -1, 1, Q("2.53125 in")),
    Sketcher.Constraint("DistanceX", -1, 1, 0, 3, Q("41.056814 mm")),
])
doc.recompute()
hole2 = body.newObject("PartDesign::Hole", "Hole001")
hole2.Profile = sketch5
hole2.ThreadType = "None"
hole2.Diameter = Q("0.25 in")
hole2.DepthType = "ThroughAll"
hole2.Reversed = True

# Sketch on XZ plane
sketch6 = body.newObject("Sketcher::SketchObject", "Sketch005")
sketch6.AttachmentSupport = (doc.getObject("XZ_Plane"), [""])
sketch6.MapMode = "FlatFace"
sketch6.AttachmentOffset = App.Placement(V(0, 0, -0.125 * 25.4), App.Rotation())
sketch6.addGeometry([
    Part.Circle(V(720.5, -32.4, 0), V(0, 0, 1), 2.5),  # 0
    Part.Circle(V(491.9, -32.4, 0), V(0, 0, 1), 2.5),  # 1
    Part.Circle(V(263.3, -32.4, 0), V(0, 0, 1), 2.5),  # 2
    Part.Circle(V(41.1, -54, 0), V(0, 0, 1), 3.2),  # 3
    Part.Circle(V(422.1, -54, 0), V(0, 0, 1), 3.2),  # 4
    Part.Circle(V(803.1, -54, 0), V(0, 0, 1), 3.2),  # 5
    Part.LineSegment(V(53.8, -98.4, 0), V(28.4, -98.4, 0)),  # 6
    Part.ArcOfCircle(Part.Circle(V(28.4, -85.7, 0), V(0, 0, 1), 12.7), math.radians(90), math.radians(270)),  # 7
    Part.LineSegment(V(28.4, -73, 0), V(53.8, -73, 0)),  # 8
    Part.ArcOfCircle(Part.Circle(V(53.8, -85.7, 0), V(0, 0, 1), 12.7), math.radians(-90), math.radians(90)),  # 9
    Part.LineSegment(V(450.6, -98.4, 0), V(425.2, -98.4, 0)),  # 10
    Part.ArcOfCircle(Part.Circle(V(425.2, -85.7, 0), V(0, 0, 1), 12.7), math.radians(90), math.radians(270)),  # 11
    Part.LineSegment(V(425.2, -73, 0), V(450.6, -73, 0)),  # 12
    Part.ArcOfCircle(Part.Circle(V(450.6, -85.7, 0), V(0, 0, 1), 12.7), math.radians(-90), math.radians(90)),  # 13
    Part.LineSegment(V(790.4, -98.4, 0), V(765, -98.4, 0)),  # 14
    Part.ArcOfCircle(Part.Circle(V(765, -85.7, 0), V(0, 0, 1), 12.7), math.radians(90), math.radians(270)),  # 15
    Part.LineSegment(V(765, -73, 0), V(790.4, -73, 0)),  # 16
    Part.ArcOfCircle(Part.Circle(V(790.4, -85.7, 0), V(0, 0, 1), 12.7), math.radians(-90), math.radians(90)),  # 17
], False)
sketch6.addConstraint([
    Sketcher.Constraint("Tangent", 6, 2, 7, 2),
    Sketcher.Constraint("Tangent", 7, 1, 8, 1),
    Sketcher.Constraint("Tangent", 8, 2, 9, 2),
    Sketcher.Constraint("Tangent", 9, 1, 6, 1),
    Sketcher.Constraint("Tangent", 10, 2, 11, 2),
    Sketcher.Constraint("Tangent", 11, 1, 12, 1),
    Sketcher.Constraint("Tangent", 12, 2, 13, 2),
    Sketcher.Constraint("Tangent", 13, 1, 10, 1),
    Sketcher.Constraint("Tangent", 14, 2, 15, 2),
    Sketcher.Constraint("Tangent", 15, 1, 16, 1),
    Sketcher.Constraint("Tangent", 16, 2, 17, 2),
    Sketcher.Constraint("Tangent", 17, 1, 14, 1),
    Sketcher.Constraint("Horizontal", 6),
    Sketcher.Constraint("Horizontal", 8),
    Sketcher.Constraint("Horizontal", 10),
    Sketcher.Constraint("Horizontal", 12),
    Sketcher.Constraint("Horizontal", 14),
    Sketcher.Constraint("Horizontal", 16),
    Sketcher.Constraint("Equal", 0, 1),
    Sketcher.Constraint("Equal", 1, 2),
    Sketcher.Constraint("Equal", 3, 4),
    Sketcher.Constraint("Equal", 4, 5),
    Sketcher.Constraint("Equal", 9, 11),
    Sketcher.Constraint("Equal", 13, 15),
    Sketcher.Constraint("Horizontal", 0, 3, 1, 3),
    Sketcher.Constraint("Horizontal", 1, 3, 2, 3),
    Sketcher.Constraint("Horizontal", 3, 3, 4, 3),
    Sketcher.Constraint("Horizontal", 4, 3, 5, 3),
    Sketcher.Constraint("Horizontal", 9, 3, 11, 3),
    Sketcher.Constraint("Horizontal", 13, 3, 15, 3),
    Sketcher.Constraint("Equal", 8, 10),
    Sketcher.Constraint("Equal", 12, 14),
    Sketcher.Constraint("Radius", 7, Q("0.5 in")),
    Sketcher.Constraint("Diameter", 3, Q("0.25 in")),
    Sketcher.Constraint("DistanceX", 6, 2, 6, 1, Q("1 in")),
    Sketcher.Constraint("DistanceX", 1, 3, 0, 3, Q("9 in")),
    Sketcher.Constraint("DistanceX", 2, 3, 1, 3, Q("9 in")),
    Sketcher.Constraint("DistanceX", 3, 3, 4, 3, Q("15 in")),
    Sketcher.Constraint("DistanceX", 4, 3, 5, 3, Q("15 in")),
    Sketcher.Constraint("Diameter", 0, Q("0.1935 in")),
    Sketcher.Constraint("DistanceX", 7, 3, 3, 3, Q("0.5 in")),
    Sketcher.Constraint("DistanceY", 7, 3, 2, 3, Q("2.1 in")),
    Sketcher.Constraint("DistanceX", 15, 3, 5, 3, Q("1.5 in")),
    Sketcher.Constraint("DistanceX", 3, 3, 2, 3, Q("8.75 in")),
    Sketcher.Constraint("DistanceY", 3, 3, 2, 3, Q("0.85 in")),
    Sketcher.Constraint("DistanceY", 0, 3, -1, 1, Q("1.275 in")),
    Sketcher.Constraint("DistanceX", 4, 3, 11, 3, Q("0.125 in")),
    Sketcher.Constraint("DistanceX", -1, 1, 0, 3, Q("720.506814 mm")),
])
pocket3 = body.newObject("PartDesign::Pocket", "Pocket002")
pocket3.Profile = sketch6
pocket3.Type = "ThroughAll"
pocket3.Reversed = True

doc.recompute()
